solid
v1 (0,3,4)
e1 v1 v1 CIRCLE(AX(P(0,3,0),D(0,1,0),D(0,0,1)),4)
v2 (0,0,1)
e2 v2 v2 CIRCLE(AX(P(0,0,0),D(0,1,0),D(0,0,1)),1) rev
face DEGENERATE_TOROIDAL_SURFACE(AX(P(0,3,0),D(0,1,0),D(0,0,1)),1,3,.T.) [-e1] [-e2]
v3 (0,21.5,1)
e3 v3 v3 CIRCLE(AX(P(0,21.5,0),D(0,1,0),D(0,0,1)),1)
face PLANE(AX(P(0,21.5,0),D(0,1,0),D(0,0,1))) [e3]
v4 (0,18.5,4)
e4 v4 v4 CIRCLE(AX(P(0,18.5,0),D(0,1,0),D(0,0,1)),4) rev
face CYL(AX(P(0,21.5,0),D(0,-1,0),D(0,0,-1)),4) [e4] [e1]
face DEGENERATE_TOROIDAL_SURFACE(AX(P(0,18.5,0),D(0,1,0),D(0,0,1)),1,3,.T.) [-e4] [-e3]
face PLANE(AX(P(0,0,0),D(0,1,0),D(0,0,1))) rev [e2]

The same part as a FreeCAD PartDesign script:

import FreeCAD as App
import Part
import Sketcher
from FreeCAD import Vector
Q = App.Units.Quantity


def edges_at(feature, points):
    """Names of the edges that pass closest to the given points."""
    edges = feature.Shape.Edges
    near = lambda p: min(range(len(edges)), key=lambda i: edges[i].distToShape(Part.Vertex(*p))[0])
    return sorted({f"Edge{near(p) + 1}" for p in points})

doc = App.newDocument("Part")
body = doc.addObject("PartDesign::Body", "Body")

# Sketch on XZ plane
sketch1 = body.newObject("Sketcher::SketchObject", "Sketch")
sketch1.AttachmentSupport = (doc.getObject("XZ_Plane"), [""])
sketch1.MapMode = "FlatFace"
sketch1.addGeometry(Part.Circle(Vector(0, 0, 0), Vector(0, 0, 1), 4), False)
sketch1.addConstraint(Sketcher.Constraint("Coincident", 0, 3, -1, 1))
sketch1.addConstraint(Sketcher.Constraint("Diameter", 0, Q("8 mm")))
pad1 = body.newObject("PartDesign::Pad", "Pad")
pad1.Profile = sketch1
pad1.Length = 21.5
pad1.Reversed = True
doc.recompute()

fillet = body.newObject("PartDesign::Fillet", "Fillet")
fillet.Base = (pad1, edges_at(pad1, [(-4, 0, 0), (-4, 21.5, 0)]))
fillet.Radius = 3

doc.recompute()
